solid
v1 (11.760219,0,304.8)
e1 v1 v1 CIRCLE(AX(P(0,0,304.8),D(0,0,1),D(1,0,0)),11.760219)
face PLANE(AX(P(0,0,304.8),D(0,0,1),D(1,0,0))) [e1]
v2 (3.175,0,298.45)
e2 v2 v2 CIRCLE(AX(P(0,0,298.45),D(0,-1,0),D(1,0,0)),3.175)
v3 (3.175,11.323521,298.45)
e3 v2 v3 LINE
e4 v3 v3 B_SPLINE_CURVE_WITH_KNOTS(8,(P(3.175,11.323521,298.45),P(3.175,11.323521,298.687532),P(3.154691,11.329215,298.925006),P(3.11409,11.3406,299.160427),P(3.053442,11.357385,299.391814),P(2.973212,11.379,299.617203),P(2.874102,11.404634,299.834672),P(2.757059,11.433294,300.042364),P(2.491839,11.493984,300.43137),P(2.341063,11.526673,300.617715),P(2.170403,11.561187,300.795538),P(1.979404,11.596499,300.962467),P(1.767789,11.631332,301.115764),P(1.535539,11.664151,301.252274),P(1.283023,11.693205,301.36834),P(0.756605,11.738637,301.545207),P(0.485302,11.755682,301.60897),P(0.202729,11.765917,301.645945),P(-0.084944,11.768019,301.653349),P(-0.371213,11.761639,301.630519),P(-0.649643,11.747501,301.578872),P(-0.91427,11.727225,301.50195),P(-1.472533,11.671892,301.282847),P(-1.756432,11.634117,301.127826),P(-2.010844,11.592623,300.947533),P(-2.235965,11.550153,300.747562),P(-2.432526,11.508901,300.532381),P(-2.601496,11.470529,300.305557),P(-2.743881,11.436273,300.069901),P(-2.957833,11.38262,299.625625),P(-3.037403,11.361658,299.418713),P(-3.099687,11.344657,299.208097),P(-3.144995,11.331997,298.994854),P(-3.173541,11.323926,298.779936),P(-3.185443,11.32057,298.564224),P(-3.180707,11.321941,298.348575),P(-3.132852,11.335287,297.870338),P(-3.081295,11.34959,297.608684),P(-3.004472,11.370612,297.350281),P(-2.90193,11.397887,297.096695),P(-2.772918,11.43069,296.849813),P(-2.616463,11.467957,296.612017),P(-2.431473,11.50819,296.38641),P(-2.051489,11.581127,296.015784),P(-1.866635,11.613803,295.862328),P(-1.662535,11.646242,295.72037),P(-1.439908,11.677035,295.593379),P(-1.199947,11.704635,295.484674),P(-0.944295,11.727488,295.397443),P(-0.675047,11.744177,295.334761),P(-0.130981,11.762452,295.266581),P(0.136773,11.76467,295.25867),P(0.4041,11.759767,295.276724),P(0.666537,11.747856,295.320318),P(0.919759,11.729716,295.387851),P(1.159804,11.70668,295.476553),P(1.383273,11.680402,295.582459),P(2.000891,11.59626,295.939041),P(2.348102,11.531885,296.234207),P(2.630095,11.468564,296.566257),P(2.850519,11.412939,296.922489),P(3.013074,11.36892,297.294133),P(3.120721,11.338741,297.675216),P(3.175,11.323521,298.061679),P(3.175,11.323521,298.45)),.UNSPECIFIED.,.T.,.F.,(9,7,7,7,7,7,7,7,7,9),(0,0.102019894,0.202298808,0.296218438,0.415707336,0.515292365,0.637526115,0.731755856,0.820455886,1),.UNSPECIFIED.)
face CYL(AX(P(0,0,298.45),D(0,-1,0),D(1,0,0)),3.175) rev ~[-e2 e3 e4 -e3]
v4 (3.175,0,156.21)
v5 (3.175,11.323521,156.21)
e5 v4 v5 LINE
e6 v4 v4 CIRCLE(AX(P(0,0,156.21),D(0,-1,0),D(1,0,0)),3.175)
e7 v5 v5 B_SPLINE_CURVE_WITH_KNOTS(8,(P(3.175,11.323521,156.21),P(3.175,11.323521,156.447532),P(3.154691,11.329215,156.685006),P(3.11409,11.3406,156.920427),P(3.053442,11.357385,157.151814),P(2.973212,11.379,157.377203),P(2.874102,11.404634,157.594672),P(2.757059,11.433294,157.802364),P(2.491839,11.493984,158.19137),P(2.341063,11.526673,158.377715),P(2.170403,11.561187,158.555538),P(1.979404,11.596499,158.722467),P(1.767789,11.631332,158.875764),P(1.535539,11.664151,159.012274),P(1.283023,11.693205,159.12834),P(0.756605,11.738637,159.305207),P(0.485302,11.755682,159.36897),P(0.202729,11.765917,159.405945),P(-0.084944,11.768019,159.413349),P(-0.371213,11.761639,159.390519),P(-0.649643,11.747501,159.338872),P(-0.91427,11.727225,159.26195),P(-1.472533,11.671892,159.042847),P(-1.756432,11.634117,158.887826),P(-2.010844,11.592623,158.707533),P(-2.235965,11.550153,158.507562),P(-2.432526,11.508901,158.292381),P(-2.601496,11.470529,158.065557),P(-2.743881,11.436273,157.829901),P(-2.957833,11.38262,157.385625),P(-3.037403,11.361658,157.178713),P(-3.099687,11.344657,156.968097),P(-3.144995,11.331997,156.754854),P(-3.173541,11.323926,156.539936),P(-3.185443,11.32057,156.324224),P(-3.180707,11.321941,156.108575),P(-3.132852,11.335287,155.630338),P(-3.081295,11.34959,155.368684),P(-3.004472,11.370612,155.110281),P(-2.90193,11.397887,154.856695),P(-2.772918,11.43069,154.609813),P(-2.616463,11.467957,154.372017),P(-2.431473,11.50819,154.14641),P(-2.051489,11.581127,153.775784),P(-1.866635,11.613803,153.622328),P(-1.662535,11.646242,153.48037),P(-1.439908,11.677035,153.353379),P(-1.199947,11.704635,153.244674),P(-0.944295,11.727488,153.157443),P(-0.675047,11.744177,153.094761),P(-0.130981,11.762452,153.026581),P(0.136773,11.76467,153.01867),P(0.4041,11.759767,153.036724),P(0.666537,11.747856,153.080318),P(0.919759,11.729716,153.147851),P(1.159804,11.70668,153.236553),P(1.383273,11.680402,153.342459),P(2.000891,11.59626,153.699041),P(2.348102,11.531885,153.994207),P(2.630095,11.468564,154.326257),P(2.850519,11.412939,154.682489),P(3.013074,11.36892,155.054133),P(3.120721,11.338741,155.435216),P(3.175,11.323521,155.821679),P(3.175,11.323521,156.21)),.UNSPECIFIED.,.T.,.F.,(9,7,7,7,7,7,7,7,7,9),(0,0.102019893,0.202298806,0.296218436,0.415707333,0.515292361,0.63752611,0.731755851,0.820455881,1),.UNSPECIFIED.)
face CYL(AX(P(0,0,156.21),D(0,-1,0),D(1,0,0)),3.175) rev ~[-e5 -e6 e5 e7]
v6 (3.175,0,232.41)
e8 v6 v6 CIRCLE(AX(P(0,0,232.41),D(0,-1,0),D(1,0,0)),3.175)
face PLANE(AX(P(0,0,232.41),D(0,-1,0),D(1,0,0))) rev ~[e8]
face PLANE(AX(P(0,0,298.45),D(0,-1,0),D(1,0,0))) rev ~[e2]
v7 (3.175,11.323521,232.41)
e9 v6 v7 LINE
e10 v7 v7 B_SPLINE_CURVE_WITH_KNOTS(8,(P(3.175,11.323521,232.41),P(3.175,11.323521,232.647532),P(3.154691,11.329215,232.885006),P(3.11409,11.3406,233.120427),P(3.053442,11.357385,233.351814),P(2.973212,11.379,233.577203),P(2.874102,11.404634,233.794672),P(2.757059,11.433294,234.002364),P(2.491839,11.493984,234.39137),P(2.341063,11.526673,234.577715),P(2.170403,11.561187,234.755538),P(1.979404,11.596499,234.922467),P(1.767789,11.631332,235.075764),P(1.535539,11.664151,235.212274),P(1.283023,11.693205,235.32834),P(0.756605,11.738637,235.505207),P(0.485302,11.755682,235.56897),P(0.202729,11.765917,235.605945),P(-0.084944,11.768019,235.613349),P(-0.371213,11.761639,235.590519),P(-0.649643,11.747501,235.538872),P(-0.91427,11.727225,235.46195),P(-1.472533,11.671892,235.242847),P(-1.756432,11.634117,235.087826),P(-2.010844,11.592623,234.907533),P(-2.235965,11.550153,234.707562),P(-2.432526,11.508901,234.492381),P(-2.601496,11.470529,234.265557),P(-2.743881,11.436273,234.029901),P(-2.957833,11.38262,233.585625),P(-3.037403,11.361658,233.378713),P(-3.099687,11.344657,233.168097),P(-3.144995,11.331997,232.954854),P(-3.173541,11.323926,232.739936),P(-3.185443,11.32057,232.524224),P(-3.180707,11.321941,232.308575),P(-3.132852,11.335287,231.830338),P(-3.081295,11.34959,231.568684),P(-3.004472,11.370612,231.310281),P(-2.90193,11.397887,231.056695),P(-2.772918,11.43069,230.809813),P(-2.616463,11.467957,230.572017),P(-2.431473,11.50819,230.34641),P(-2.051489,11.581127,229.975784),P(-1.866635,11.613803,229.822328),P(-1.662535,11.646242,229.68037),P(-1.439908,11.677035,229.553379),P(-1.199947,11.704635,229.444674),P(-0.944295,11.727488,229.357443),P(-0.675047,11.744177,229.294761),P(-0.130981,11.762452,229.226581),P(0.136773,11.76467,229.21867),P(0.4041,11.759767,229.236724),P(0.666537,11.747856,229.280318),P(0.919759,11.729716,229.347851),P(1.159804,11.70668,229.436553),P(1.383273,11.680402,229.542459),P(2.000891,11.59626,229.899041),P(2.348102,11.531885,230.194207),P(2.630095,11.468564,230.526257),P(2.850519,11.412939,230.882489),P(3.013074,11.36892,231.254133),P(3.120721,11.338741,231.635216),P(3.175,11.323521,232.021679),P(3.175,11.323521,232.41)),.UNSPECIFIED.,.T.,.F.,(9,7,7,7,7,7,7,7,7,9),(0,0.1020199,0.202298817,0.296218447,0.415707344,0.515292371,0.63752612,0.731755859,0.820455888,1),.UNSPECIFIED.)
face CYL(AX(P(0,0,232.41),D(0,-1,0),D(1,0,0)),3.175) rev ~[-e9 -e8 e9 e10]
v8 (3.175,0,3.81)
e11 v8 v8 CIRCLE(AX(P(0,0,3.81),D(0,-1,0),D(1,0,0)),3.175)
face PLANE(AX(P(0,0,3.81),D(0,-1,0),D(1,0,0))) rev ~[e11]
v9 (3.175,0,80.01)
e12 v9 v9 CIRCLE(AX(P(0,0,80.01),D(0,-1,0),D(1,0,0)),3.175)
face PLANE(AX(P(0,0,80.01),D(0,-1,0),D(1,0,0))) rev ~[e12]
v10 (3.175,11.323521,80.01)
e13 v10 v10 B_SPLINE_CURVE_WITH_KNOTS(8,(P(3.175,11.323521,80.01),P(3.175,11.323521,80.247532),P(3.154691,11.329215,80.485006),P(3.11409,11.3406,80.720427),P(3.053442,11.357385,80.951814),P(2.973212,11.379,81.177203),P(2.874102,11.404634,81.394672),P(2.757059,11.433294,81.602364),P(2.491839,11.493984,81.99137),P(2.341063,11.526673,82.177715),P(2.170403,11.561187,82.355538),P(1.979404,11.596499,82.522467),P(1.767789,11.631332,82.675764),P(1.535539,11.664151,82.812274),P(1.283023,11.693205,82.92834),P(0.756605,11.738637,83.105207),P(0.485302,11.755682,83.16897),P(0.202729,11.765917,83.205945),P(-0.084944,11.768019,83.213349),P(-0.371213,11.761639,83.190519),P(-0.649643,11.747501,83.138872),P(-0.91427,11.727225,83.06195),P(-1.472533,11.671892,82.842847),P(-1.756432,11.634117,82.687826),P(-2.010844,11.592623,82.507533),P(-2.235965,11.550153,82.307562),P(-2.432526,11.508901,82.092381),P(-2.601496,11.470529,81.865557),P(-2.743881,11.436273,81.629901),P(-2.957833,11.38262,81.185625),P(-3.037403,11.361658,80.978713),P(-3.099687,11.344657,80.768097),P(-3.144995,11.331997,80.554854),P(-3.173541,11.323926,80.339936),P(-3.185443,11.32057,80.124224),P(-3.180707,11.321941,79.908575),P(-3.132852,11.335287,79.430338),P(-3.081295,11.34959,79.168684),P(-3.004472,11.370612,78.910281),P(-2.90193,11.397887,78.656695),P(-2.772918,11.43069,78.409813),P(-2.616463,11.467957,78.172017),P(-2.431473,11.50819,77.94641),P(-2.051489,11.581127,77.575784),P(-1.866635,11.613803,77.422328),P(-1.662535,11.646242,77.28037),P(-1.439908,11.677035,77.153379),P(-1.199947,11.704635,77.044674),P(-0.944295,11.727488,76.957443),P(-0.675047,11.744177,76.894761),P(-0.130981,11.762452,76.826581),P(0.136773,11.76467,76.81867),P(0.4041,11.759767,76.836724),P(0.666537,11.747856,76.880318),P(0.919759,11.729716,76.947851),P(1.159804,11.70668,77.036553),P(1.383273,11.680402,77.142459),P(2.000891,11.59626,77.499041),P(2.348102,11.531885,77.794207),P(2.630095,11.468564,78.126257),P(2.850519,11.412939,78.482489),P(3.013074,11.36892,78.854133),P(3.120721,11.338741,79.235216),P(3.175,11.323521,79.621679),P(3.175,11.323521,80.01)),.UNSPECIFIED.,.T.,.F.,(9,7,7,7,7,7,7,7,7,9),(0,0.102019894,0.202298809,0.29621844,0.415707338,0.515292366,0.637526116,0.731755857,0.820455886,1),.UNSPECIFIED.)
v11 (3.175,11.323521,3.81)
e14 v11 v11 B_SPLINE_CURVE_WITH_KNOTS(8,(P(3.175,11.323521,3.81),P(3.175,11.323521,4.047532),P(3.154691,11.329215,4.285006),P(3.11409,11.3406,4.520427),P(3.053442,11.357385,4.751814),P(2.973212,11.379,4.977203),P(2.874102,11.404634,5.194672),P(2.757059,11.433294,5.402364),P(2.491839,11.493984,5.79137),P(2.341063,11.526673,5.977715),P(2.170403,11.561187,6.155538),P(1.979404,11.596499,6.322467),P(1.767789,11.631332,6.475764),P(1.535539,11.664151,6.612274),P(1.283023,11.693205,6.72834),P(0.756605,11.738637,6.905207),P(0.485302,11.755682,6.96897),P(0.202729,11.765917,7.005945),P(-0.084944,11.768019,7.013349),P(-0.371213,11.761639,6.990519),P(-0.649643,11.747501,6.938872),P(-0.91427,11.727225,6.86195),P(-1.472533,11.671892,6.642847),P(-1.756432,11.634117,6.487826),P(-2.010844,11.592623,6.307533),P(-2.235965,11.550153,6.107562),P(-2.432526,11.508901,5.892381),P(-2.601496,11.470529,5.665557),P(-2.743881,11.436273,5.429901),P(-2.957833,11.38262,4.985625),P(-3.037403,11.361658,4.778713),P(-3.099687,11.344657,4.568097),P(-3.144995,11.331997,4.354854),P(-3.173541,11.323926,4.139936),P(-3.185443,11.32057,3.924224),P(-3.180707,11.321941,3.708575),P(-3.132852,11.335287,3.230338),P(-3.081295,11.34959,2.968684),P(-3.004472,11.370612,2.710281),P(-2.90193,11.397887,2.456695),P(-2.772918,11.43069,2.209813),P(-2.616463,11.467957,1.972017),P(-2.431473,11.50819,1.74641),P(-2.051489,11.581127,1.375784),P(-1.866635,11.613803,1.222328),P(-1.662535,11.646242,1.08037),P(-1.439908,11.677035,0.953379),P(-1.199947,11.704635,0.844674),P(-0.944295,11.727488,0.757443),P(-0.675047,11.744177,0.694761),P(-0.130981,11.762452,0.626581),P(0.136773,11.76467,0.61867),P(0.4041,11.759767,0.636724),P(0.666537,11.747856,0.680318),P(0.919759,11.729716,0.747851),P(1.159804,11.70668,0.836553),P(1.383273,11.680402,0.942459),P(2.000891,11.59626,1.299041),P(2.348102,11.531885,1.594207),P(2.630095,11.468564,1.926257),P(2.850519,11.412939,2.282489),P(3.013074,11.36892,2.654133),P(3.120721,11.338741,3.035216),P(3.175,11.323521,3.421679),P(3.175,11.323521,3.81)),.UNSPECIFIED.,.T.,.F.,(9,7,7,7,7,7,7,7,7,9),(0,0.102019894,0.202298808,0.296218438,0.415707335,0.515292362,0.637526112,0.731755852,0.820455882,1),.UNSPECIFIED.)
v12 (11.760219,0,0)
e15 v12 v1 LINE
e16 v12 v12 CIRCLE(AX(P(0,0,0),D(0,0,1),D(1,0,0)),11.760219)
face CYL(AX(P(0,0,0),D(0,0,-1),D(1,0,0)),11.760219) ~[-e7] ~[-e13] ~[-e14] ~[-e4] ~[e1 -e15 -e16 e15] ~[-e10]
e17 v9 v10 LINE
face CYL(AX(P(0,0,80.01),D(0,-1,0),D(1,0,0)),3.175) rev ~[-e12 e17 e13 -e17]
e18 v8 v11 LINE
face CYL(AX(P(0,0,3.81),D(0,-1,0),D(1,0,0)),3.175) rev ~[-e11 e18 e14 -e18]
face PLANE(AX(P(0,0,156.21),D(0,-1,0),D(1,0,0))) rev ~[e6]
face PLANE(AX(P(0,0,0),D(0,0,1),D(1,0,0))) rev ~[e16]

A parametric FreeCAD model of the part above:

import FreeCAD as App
import Part
import Sketcher
from FreeCAD import Vector
Q = App.Units.Quantity

doc = App.newDocument("Part")
body = doc.addObject("PartDesign::Body", "Body")

# Sketch on XY plane
sketch1 = body.newObject("Sketcher::SketchObject", "Sketch")
sketch1.AttachmentSupport = (doc.getObject("XY_Plane"), [""])
sketch1.MapMode = "FlatFace"
sketch1.addGeometry(Part.Circle(Vector(0, 0, 0), Vector(0, 0, 1), 12), False)
sketch1.addConstraint([
    Sketcher.Constraint("Coincident", 0, 3, -1, 1),
    Sketcher.Constraint("Diameter", 0, Q("23.520438 mm")),
])
pad1 = body.newObject("PartDesign::Pad", "Pad")
pad1.Profile = sketch1
pad1.Length = Q("12 in")

# Sketch on XZ plane
sketch2 = body.newObject("Sketcher::SketchObject", "Sketch001")
sketch2.AttachmentSupport = (doc.getObject("XZ_Plane"), [""])
sketch2.MapMode = "FlatFace"
sketch2.addGeometry([
    Part.Circle(Vector(0, 298.4, 0), Vector(0, 0, 1), 3.2),  # 0
    Part.Circle(Vector(0, 156.2, 0), Vector(0, 0, 1), 3.2),  # 1
    Part.Circle(Vector(0, 80, 0), Vector(0, 0, 1), 3.2),  # 2
    Part.Circle(Vector(0, 3.8, 0), Vector(0, 0, 1), 3.2),  # 3
    Part.Circle(Vector(0, 232.4, 0), Vector(0, 0, 1), 3.2),  # 4
], False)
sketch2.addConstraint([
    Sketcher.Constraint("Equal", 0, 1),
    Sketcher.Constraint("Equal", 1, 2),
    Sketcher.Constraint("Equal", 2, 3),
    Sketcher.Constraint("Equal", 3, 4),
    Sketcher.Constraint("PointOnObject", 0, 3, -2),
    Sketcher.Constraint("PointOnObject", 1, 3, -2),
    Sketcher.Constraint("PointOnObject", 2, 3, -2),
    Sketcher.Constraint("PointOnObject", 3, 3, -2),
    Sketcher.Constraint("PointOnObject", 4, 3, -2),
    Sketcher.Constraint("Diameter", 0, Q("0.25 in")),
    Sketcher.Constraint("DistanceY", 2, 3, 1, 3, Q("3 in")),
    Sketcher.Constraint("DistanceY", 3, 3, 2, 3, Q("3 in")),
    Sketcher.Constraint("DistanceY", 1, 3, 4, 3, Q("3 in")),
    Sketcher.Constraint("DistanceY", 1, 3, 0, 3, Q("5.6 in")),
    Sketcher.Constraint("DistanceY", -1, 1, 0, 3, Q("11.75 in")),
])
pocket1 = body.newObject("PartDesign::Pocket", "Pocket")
pocket1.Profile = sketch2
pocket1.Type = "ThroughAll"

doc.recompute()
